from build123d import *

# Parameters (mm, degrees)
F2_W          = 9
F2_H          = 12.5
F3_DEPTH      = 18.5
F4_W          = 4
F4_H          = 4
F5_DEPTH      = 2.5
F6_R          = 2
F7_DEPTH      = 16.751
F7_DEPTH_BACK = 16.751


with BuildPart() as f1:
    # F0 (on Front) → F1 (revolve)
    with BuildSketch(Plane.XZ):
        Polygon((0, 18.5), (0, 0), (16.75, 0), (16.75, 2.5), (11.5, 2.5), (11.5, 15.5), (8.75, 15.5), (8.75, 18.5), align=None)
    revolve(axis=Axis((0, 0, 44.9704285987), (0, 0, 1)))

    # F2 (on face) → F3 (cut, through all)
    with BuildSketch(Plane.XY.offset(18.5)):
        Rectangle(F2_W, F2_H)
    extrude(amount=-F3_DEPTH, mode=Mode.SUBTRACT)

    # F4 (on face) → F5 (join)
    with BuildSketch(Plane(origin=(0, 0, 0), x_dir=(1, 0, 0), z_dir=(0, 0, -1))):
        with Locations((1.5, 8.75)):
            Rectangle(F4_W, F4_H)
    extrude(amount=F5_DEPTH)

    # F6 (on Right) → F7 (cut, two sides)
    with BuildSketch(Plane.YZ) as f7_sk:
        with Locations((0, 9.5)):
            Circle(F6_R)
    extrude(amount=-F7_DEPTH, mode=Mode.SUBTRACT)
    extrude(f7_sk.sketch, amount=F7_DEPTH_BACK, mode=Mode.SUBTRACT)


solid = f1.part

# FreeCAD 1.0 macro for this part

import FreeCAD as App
import Part
import Sketcher
from FreeCAD import Vector
Q = App.Units.Quantity

doc = App.newDocument("Part")
body = doc.addObject("PartDesign::Body", "Body")

sketch1 = body.newObject("Sketcher::SketchObject", "Sketch")
sketch1.AttachmentSupport = (doc.getObject("XZ_Plane"), [""])
sketch1.MapMode = "FlatFace"
sketch1.addGeometry([
    Part.LineSegment(Vector(0, 18.5, 0), Vector(0, 0, 0)),
    Part.LineSegment(Vector(0, 0, 0), Vector(16.75, 0, 0)),
    Part.LineSegment(Vector(16.75, 0, 0), Vector(16.75, 2.5, 0)),
    Part.LineSegment(Vector(16.75, 2.5, 0), Vector(11.5, 2.5, 0)),
    Part.LineSegment(Vector(11.5, 2.5, 0), Vector(11.5, 15.5, 0)),
    Part.LineSegment(Vector(11.5, 15.5, 0), Vector(8.75, 15.5, 0)),
    Part.LineSegment(Vector(8.75, 15.5, 0), Vector(8.75, 18.5, 0)),
    Part.LineSegment(Vector(8.75, 18.5, 0), Vector(0, 18.5, 0)),
], False)
sketch1.addConstraint([
    Sketcher.Constraint("Coincident", 0, 2, 1, 1),
    Sketcher.Constraint("Coincident", 1, 2, 2, 1),
    Sketcher.Constraint("Coincident", 2, 2, 3, 1),
    Sketcher.Constraint("Coincident", 3, 2, 4, 1),
    Sketcher.Constraint("Coincident", 4, 2, 5, 1),
    Sketcher.Constraint("Coincident", 5, 2, 6, 1),
    Sketcher.Constraint("Coincident", 6, 2, 7, 1),
    Sketcher.Constraint("Coincident", 7, 2, 0, 1),
    Sketcher.Constraint("Vertical", 0),
    Sketcher.Constraint("Horizontal", 1),
    Sketcher.Constraint("Vertical", 2),
    Sketcher.Constraint("Horizontal", 3),
    Sketcher.Constraint("Vertical", 4),
    Sketcher.Constraint("Horizontal", 5),
    Sketcher.Constraint("Vertical", 6),
    Sketcher.Constraint("Horizontal", 7),
    Sketcher.Constraint("Coincident", 0, 2, -1, 1),
    Sketcher.Constraint("DistanceY", 4, 1, 4, 2, Q("13 mm")),
    Sketcher.Constraint("DistanceY", 6, 1, 6, 2, Q("3 mm")),
    Sketcher.Constraint("DistanceY", 0, 2, 0, 1, Q("18.5 mm")),
    Sketcher.Constraint("DistanceX", 5, 2, 2, 2, Q("8 mm")),
    Sketcher.Constraint("DistanceX", 1, 1, 1, 2, Q("16.75 mm")),
    Sketcher.Constraint("DistanceX", 3, 2, 3, 1, Q("5.25 mm")),
])
revolution = body.newObject("PartDesign::Revolution", "Revolution")
revolution.Profile = sketch1
revolution.ReferenceAxis = (sketch1, ["V_Axis"])
revolution.Angle = 360

sketch2 = body.newObject("Sketcher::SketchObject", "Sketch001")
sketch2.AttachmentSupport = (doc.getObject("XY_Plane"), [""])
sketch2.MapMode = "FlatFace"
sketch2.AttachmentOffset = App.Placement(Vector(0, 0, 18.5), App.Rotation())
sketch2.addGeometry([
    Part.LineSegment(Vector(-4.5, 6.25, 0), Vector(-4.5, -6.25, 0)),
    Part.LineSegment(Vector(-4.5, -6.25, 0), Vector(4.5, -6.25, 0)),
    Part.LineSegment(Vector(4.5, -6.25, 0), Vector(4.5, 6.25, 0)),
    Part.LineSegment(Vector(4.5, 6.25, 0), Vector(-4.5, 6.25, 0)),
], False)
sketch2.addConstraint([
    Sketcher.Constraint("Coincident", 0, 2, 1, 1),
    Sketcher.Constraint("Coincident", 1, 2, 2, 1),
    Sketcher.Constraint("Coincident", 2, 2, 3, 1),
    Sketcher.Constraint("Coincident", 3, 2, 0, 1),
    Sketcher.Constraint("Vertical", 0),
    Sketcher.Constraint("Horizontal", 1),
    Sketcher.Constraint("Vertical", 2),
    Sketcher.Constraint("Horizontal", 3),
    Sketcher.Constraint("Symmetric", 0, 2, 2, 2, -1, 1),
    Sketcher.Constraint("DistanceX", 1, 1, 1, 2, Q("9 mm")),
    Sketcher.Constraint("DistanceY", 0, 2, 0, 1, Q("12.5 mm")),
])
pocket1 = body.newObject("PartDesign::Pocket", "Pocket")
pocket1.Profile = sketch2
pocket1.Type = "ThroughAll"

sketch3 = body.newObject("Sketcher::SketchObject", "Sketch002")
sketch3.AttachmentSupport = (doc.getObject("XY_Plane"), [""])
sketch3.MapMode = "FlatFace"
sketch3.addGeometry([
    Part.LineSegment(Vector(-0.5, -10.75, 0), Vector(-0.5, -6.75, 0)),
    Part.LineSegment(Vector(-0.5, -6.75, 0), Vector(3.5, -6.75, 0)),
    Part.LineSegment(Vector(3.5, -6.75, 0), Vector(3.5, -10.75, 0)),
    Part.LineSegment(Vector(3.5, -10.75, 0), Vector(-0.5, -10.75, 0)),
], False)
sketch3.addConstraint([
    Sketcher.Constraint("Coincident", 0, 2, 1, 1),
    Sketcher.Constraint("Coincident", 1, 2, 2, 1),
    Sketcher.Constraint("Coincident", 2, 2, 3, 1),
    Sketcher.Constraint("Coincident", 3, 2, 0, 1),
    Sketcher.Constraint("Vertical", 0),
    Sketcher.Constraint("Horizontal", 1),
    Sketcher.Constraint("Vertical", 2),
    Sketcher.Constraint("Horizontal", 3),
    Sketcher.Constraint("Equal", 3, 0),
    Sketcher.Constraint("DistanceX", 1, 1, 1, 2, Q("4 mm")),
    Sketcher.Constraint("DistanceX", 0, 2, -1, 1, Q("0.5 mm")),
    Sketcher.Constraint("DistanceY", 0, 2, -1, 1, Q("6.75 mm")),
])
pad1 = body.newObject("PartDesign::Pad", "Pad")
pad1.Profile = sketch3
pad1.Length = 2.5
pad1.Reversed = True

sketch4 = body.newObject("Sketcher::SketchObject", "Sketch003")
sketch4.AttachmentSupport = (doc.getObject("YZ_Plane"), [""])
sketch4.MapMode = "FlatFace"
sketch4.addGeometry(Part.Circle(Vector(0, 9.5, 0), Vector(0, 0, 1), 2), False)
sketch4.addConstraint([
    Sketcher.Constraint("PointOnObject", 0, 3, -2),
    Sketcher.Constraint("Diameter", 0, Q("4 mm")),
    Sketcher.Constraint("DistanceY", -1, 1, 0, 3, Q("9.5 mm")),
])
pocket2 = body.newObject("PartDesign::Pocket", "Pocket001")
pocket2.Profile = sketch4
pocket2.Type = "ThroughAll"
pocket2.Midplane = True

doc.recompute()
